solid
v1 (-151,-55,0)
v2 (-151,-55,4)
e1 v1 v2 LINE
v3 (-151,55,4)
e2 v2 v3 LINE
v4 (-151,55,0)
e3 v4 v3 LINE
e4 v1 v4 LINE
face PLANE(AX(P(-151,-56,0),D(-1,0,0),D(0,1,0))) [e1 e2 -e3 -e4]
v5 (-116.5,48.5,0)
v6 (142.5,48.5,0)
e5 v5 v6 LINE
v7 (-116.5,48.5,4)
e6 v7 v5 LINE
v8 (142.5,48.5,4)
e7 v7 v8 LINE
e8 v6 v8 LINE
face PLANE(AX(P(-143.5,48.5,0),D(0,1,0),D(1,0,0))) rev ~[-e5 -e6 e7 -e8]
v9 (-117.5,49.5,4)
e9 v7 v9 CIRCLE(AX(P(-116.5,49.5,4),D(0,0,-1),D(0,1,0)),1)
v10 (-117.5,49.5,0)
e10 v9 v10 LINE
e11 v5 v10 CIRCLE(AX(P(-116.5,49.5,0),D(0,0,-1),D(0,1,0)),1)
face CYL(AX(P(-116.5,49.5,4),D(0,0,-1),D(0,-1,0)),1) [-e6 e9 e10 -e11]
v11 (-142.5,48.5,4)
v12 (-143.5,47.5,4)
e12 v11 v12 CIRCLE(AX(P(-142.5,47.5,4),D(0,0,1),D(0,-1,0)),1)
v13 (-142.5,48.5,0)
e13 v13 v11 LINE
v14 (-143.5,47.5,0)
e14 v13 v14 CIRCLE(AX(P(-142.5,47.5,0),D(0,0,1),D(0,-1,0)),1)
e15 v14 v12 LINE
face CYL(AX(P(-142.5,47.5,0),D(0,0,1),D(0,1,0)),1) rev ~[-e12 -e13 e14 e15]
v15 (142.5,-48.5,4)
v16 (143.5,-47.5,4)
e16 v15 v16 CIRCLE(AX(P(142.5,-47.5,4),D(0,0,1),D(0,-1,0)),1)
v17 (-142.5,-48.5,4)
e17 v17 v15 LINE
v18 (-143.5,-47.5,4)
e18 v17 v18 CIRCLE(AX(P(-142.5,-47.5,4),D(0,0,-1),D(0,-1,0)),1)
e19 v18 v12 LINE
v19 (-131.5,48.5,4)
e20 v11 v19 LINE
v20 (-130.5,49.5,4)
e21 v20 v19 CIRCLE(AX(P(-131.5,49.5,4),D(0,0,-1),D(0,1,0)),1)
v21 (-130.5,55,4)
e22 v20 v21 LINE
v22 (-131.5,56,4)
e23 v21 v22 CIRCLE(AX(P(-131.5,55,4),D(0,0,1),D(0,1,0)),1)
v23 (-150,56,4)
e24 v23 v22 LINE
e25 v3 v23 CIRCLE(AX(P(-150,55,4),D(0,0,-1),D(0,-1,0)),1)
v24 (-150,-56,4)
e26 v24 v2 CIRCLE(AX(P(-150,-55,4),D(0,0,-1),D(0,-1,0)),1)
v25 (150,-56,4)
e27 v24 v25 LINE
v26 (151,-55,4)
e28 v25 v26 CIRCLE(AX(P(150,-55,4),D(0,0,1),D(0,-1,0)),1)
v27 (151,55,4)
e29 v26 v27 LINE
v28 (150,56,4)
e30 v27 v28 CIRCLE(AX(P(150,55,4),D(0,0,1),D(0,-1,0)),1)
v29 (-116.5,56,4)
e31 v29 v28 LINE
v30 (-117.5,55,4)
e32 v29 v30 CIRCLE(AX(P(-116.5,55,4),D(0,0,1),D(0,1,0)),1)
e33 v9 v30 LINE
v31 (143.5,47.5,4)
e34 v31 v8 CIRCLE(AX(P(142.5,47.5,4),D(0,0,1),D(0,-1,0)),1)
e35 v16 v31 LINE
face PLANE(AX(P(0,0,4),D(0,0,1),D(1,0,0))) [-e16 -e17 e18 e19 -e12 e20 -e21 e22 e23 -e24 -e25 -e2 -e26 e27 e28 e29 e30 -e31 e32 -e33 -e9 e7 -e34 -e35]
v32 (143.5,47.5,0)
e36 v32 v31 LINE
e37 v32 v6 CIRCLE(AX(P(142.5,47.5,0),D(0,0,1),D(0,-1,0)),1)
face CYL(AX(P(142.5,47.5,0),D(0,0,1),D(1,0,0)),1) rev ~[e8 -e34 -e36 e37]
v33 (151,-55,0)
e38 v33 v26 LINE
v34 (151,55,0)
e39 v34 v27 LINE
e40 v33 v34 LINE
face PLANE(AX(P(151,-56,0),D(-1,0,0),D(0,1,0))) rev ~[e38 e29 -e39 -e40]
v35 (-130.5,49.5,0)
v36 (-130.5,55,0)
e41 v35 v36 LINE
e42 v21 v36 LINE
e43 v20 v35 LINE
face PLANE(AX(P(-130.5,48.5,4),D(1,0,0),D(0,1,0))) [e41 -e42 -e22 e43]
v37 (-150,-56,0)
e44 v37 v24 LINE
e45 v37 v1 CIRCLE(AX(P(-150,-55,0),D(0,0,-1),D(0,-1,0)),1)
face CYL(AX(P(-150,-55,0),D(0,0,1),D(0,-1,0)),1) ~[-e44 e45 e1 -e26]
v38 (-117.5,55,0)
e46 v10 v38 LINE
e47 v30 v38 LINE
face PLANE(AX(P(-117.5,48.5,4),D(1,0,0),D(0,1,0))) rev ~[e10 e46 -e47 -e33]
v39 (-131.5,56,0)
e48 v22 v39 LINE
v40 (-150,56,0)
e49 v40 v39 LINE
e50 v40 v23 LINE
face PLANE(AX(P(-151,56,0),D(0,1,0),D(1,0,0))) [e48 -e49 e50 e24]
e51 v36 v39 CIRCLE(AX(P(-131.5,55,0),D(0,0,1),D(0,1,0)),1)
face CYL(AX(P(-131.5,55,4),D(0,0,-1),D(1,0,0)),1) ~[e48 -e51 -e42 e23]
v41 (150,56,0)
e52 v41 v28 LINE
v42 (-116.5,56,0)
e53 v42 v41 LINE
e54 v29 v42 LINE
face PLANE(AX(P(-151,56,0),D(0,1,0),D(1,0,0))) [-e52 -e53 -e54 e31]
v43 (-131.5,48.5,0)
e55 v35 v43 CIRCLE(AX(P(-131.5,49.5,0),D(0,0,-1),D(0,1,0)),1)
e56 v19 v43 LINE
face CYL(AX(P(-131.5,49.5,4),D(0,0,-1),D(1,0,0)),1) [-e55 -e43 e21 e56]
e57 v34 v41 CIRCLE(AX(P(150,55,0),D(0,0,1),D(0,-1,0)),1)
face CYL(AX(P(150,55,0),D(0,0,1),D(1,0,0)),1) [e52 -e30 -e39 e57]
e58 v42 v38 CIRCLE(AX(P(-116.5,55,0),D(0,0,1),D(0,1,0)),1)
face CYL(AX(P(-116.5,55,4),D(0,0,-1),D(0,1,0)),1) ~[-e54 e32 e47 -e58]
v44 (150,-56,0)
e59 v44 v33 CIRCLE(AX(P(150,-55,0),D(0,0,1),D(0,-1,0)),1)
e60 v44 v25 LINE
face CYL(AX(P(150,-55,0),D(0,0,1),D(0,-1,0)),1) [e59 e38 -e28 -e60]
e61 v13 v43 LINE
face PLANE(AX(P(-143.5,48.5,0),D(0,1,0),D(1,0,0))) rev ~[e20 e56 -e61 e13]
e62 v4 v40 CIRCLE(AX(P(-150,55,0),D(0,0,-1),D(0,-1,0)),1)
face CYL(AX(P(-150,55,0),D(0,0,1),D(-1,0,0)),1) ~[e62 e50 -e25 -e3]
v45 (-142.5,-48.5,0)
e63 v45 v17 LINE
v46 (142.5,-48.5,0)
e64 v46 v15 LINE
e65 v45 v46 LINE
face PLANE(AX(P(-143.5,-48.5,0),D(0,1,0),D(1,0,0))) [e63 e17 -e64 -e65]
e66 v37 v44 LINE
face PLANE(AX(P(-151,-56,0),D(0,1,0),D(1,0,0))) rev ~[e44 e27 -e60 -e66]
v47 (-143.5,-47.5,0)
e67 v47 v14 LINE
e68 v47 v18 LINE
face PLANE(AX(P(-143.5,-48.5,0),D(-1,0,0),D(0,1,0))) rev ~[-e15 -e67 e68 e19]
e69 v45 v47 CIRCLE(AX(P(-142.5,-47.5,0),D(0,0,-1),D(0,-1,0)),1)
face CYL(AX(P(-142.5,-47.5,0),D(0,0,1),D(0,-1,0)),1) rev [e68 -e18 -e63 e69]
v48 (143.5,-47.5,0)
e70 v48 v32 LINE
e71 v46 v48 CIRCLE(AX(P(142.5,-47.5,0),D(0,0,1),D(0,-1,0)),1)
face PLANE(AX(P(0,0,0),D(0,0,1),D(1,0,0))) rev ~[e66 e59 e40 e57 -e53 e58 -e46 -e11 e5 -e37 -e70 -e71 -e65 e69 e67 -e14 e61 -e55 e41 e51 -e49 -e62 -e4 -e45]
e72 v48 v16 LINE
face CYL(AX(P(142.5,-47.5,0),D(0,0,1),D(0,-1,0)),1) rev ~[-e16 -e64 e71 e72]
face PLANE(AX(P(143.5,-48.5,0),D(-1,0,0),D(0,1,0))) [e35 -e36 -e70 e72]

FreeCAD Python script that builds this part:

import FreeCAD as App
import Part
import Sketcher
from FreeCAD import Vector
Q = App.Units.Quantity


def edges_at(feature, points):
    """Names of the edges that pass closest to the given points."""
    edges = feature.Shape.Edges
    near = lambda p: min(range(len(edges)), key=lambda i: edges[i].distToShape(Part.Vertex(*p))[0])
    return sorted({f"Edge{near(p) + 1}" for p in points})


def add_polygon(sketch, points):
    """Adds a closed chain of lines whose ends are joined by coincident constraints."""
    first, n = sketch.GeometryCount, len(points)
    for a, b in zip(points, points[1:] + points[:1]):
        sketch.addGeometry(Part.LineSegment(App.Vector(*a, 0), App.Vector(*b, 0)), False)
    for i in range(n):
        sketch.addConstraint(Sketcher.Constraint("Coincident", first + i, 2, first + (i + 1) % n, 1))

doc = App.newDocument("Part")
body = doc.addObject("PartDesign::Body", "Body")

# Sketch on XY plane
sketch1 = body.newObject("Sketcher::SketchObject", "Sketch")
sketch1.AttachmentSupport = (doc.getObject("XY_Plane"), [""])
sketch1.MapMode = "FlatFace"
add_polygon(sketch1, [(-151, 56), (-151, -56), (151, -56), (151, 56)])  # lines 0-3
add_polygon(sketch1, [(143.5, -48.5), (-143.5, -48.5), (-143.5, 48.5), (143.5, 48.5)])  # lines 4-7
sketch1.addConstraint(Sketcher.Constraint("Vertical", 0))
sketch1.addConstraint(Sketcher.Constraint("Horizontal", 1))
sketch1.addConstraint(Sketcher.Constraint("Vertical", 2))
sketch1.addConstraint(Sketcher.Constraint("Horizontal", 3))
sketch1.addConstraint(Sketcher.Constraint("Horizontal", 4))
sketch1.addConstraint(Sketcher.Constraint("Vertical", 5))
sketch1.addConstraint(Sketcher.Constraint("Horizontal", 6))
sketch1.addConstraint(Sketcher.Constraint("Vertical", 7))
sketch1.addConstraint(Sketcher.Constraint("Symmetric", 0, 2, 2, 2, -1, 1))
sketch1.addConstraint(Sketcher.Constraint("Symmetric", 4, 2, 6, 2, -1, 1))
sketch1.addConstraint(Sketcher.Constraint("DistanceX", 1, 1, 1, 2, Q("302 mm")))
sketch1.addConstraint(Sketcher.Constraint("DistanceX", 4, 2, 4, 1, Q("287 mm")))
sketch1.addConstraint(Sketcher.Constraint("DistanceY", 0, 2, 0, 1, Q("112 mm")))
sketch1.addConstraint(Sketcher.Constraint("DistanceY", 5, 1, 5, 2, Q("97 mm")))
pad1 = body.newObject("PartDesign::Pad", "Pad")
pad1.Profile = sketch1
pad1.Length = 4

# Sketch on XY plane
sketch2 = body.newObject("Sketcher::SketchObject", "Sketch001")
sketch2.AttachmentSupport = (doc.getObject("XY_Plane"), [""])
sketch2.MapMode = "FlatFace"
sketch2.AttachmentOffset = App.Placement(Vector(0, 0, 4), App.Rotation())
add_polygon(sketch2, [(-130.5, 56), (-130.5, 48.5), (-117.5, 48.5), (-117.5, 56)])  # lines 0-3
sketch2.addConstraint(Sketcher.Constraint("Vertical", 0))
sketch2.addConstraint(Sketcher.Constraint("Horizontal", 1))
sketch2.addConstraint(Sketcher.Constraint("Vertical", 2))
sketch2.addConstraint(Sketcher.Constraint("Horizontal", 3))
sketch2.addConstraint(Sketcher.Constraint("DistanceX", 1, 1, 1, 2, Q("13 mm")))
sketch2.addConstraint(Sketcher.Constraint("DistanceY", 0, 2, 0, 1, Q("7.5 mm")))
sketch2.addConstraint(Sketcher.Constraint("DistanceY", -1, 1, 2, 2, Q("56 mm")))
sketch2.addConstraint(Sketcher.Constraint("DistanceX", 0, 2, -1, 1, Q("130.5 mm")))
pocket1 = body.newObject("PartDesign::Pocket", "Pocket")
pocket1.Profile = sketch2
pocket1.Length = 4
doc.recompute()

fillet = body.newObject("PartDesign::Fillet", "Fillet")
fillet.Base = (pocket1, edges_at(pocket1, [(-130.5, 48.5, 2)]))
fillet.Radius = 1
doc.recompute()

fillet2 = body.newObject("PartDesign::Fillet", "Fillet001")
fillet2.Base = (fillet, edges_at(fillet, [(-143.5, 48.5, 2)]))
fillet2.Radius = 1
doc.recompute()

fillet3 = body.newObject("PartDesign::Fillet", "Fillet002")
fillet3.Base = (fillet2, edges_at(fillet2, [(-117.5, 48.5, 2)]))
fillet3.Radius = 1
doc.recompute()

fillet4 = body.newObject("PartDesign::Fillet", "Fillet003")
fillet4.Base = (fillet3, edges_at(fillet3, [(-151, -56, 2)]))
fillet4.Radius = 1
doc.recompute()

fillet5 = body.newObject("PartDesign::Fillet", "Fillet004")
fillet5.Base = (fillet4, edges_at(fillet4, [(151, -56, 2)]))
fillet5.Radius = 1
doc.recompute()

fillet6 = body.newObject("PartDesign::Fillet", "Fillet005")
fillet6.Base = (fillet5, edges_at(fillet5, [(151, 56, 2)]))
fillet6.Radius = 1
doc.recompute()

fillet7 = body.newObject("PartDesign::Fillet", "Fillet006")
fillet7.Base = (fillet6, edges_at(fillet6, [(-117.5, 56, 2)]))
fillet7.Radius = 1
doc.recompute()

fillet8 = body.newObject("PartDesign::Fillet", "Fillet007")
fillet8.Base = (fillet7, edges_at(fillet7, [(-151, 56, 2)]))
fillet8.Radius = 1
doc.recompute()

fillet9 = body.newObject("PartDesign::Fillet", "Fillet008")
fillet9.Base = (fillet8, edges_at(fillet8, [(143.5, -48.5, 2)]))
fillet9.Radius = 1
doc.recompute()

fillet10 = body.newObject("PartDesign::Fillet", "Fillet009")
fillet10.Base = (fillet9, edges_at(fillet9, [(-143.5, -48.5, 2)]))
fillet10.Radius = 1
doc.recompute()

fillet11 = body.newObject("PartDesign::Fillet", "Fillet010")
fillet11.Base = (fillet10, edges_at(fillet10, [(143.5, 48.5, 2)]))
fillet11.Radius = 1
doc.recompute()

fillet12 = body.newObject("PartDesign::Fillet", "Fillet011")
fillet12.Base = (fillet11, edges_at(fillet11, [(-130.5, 56, 2)]))
fillet12.Radius = 1

doc.recompute()
